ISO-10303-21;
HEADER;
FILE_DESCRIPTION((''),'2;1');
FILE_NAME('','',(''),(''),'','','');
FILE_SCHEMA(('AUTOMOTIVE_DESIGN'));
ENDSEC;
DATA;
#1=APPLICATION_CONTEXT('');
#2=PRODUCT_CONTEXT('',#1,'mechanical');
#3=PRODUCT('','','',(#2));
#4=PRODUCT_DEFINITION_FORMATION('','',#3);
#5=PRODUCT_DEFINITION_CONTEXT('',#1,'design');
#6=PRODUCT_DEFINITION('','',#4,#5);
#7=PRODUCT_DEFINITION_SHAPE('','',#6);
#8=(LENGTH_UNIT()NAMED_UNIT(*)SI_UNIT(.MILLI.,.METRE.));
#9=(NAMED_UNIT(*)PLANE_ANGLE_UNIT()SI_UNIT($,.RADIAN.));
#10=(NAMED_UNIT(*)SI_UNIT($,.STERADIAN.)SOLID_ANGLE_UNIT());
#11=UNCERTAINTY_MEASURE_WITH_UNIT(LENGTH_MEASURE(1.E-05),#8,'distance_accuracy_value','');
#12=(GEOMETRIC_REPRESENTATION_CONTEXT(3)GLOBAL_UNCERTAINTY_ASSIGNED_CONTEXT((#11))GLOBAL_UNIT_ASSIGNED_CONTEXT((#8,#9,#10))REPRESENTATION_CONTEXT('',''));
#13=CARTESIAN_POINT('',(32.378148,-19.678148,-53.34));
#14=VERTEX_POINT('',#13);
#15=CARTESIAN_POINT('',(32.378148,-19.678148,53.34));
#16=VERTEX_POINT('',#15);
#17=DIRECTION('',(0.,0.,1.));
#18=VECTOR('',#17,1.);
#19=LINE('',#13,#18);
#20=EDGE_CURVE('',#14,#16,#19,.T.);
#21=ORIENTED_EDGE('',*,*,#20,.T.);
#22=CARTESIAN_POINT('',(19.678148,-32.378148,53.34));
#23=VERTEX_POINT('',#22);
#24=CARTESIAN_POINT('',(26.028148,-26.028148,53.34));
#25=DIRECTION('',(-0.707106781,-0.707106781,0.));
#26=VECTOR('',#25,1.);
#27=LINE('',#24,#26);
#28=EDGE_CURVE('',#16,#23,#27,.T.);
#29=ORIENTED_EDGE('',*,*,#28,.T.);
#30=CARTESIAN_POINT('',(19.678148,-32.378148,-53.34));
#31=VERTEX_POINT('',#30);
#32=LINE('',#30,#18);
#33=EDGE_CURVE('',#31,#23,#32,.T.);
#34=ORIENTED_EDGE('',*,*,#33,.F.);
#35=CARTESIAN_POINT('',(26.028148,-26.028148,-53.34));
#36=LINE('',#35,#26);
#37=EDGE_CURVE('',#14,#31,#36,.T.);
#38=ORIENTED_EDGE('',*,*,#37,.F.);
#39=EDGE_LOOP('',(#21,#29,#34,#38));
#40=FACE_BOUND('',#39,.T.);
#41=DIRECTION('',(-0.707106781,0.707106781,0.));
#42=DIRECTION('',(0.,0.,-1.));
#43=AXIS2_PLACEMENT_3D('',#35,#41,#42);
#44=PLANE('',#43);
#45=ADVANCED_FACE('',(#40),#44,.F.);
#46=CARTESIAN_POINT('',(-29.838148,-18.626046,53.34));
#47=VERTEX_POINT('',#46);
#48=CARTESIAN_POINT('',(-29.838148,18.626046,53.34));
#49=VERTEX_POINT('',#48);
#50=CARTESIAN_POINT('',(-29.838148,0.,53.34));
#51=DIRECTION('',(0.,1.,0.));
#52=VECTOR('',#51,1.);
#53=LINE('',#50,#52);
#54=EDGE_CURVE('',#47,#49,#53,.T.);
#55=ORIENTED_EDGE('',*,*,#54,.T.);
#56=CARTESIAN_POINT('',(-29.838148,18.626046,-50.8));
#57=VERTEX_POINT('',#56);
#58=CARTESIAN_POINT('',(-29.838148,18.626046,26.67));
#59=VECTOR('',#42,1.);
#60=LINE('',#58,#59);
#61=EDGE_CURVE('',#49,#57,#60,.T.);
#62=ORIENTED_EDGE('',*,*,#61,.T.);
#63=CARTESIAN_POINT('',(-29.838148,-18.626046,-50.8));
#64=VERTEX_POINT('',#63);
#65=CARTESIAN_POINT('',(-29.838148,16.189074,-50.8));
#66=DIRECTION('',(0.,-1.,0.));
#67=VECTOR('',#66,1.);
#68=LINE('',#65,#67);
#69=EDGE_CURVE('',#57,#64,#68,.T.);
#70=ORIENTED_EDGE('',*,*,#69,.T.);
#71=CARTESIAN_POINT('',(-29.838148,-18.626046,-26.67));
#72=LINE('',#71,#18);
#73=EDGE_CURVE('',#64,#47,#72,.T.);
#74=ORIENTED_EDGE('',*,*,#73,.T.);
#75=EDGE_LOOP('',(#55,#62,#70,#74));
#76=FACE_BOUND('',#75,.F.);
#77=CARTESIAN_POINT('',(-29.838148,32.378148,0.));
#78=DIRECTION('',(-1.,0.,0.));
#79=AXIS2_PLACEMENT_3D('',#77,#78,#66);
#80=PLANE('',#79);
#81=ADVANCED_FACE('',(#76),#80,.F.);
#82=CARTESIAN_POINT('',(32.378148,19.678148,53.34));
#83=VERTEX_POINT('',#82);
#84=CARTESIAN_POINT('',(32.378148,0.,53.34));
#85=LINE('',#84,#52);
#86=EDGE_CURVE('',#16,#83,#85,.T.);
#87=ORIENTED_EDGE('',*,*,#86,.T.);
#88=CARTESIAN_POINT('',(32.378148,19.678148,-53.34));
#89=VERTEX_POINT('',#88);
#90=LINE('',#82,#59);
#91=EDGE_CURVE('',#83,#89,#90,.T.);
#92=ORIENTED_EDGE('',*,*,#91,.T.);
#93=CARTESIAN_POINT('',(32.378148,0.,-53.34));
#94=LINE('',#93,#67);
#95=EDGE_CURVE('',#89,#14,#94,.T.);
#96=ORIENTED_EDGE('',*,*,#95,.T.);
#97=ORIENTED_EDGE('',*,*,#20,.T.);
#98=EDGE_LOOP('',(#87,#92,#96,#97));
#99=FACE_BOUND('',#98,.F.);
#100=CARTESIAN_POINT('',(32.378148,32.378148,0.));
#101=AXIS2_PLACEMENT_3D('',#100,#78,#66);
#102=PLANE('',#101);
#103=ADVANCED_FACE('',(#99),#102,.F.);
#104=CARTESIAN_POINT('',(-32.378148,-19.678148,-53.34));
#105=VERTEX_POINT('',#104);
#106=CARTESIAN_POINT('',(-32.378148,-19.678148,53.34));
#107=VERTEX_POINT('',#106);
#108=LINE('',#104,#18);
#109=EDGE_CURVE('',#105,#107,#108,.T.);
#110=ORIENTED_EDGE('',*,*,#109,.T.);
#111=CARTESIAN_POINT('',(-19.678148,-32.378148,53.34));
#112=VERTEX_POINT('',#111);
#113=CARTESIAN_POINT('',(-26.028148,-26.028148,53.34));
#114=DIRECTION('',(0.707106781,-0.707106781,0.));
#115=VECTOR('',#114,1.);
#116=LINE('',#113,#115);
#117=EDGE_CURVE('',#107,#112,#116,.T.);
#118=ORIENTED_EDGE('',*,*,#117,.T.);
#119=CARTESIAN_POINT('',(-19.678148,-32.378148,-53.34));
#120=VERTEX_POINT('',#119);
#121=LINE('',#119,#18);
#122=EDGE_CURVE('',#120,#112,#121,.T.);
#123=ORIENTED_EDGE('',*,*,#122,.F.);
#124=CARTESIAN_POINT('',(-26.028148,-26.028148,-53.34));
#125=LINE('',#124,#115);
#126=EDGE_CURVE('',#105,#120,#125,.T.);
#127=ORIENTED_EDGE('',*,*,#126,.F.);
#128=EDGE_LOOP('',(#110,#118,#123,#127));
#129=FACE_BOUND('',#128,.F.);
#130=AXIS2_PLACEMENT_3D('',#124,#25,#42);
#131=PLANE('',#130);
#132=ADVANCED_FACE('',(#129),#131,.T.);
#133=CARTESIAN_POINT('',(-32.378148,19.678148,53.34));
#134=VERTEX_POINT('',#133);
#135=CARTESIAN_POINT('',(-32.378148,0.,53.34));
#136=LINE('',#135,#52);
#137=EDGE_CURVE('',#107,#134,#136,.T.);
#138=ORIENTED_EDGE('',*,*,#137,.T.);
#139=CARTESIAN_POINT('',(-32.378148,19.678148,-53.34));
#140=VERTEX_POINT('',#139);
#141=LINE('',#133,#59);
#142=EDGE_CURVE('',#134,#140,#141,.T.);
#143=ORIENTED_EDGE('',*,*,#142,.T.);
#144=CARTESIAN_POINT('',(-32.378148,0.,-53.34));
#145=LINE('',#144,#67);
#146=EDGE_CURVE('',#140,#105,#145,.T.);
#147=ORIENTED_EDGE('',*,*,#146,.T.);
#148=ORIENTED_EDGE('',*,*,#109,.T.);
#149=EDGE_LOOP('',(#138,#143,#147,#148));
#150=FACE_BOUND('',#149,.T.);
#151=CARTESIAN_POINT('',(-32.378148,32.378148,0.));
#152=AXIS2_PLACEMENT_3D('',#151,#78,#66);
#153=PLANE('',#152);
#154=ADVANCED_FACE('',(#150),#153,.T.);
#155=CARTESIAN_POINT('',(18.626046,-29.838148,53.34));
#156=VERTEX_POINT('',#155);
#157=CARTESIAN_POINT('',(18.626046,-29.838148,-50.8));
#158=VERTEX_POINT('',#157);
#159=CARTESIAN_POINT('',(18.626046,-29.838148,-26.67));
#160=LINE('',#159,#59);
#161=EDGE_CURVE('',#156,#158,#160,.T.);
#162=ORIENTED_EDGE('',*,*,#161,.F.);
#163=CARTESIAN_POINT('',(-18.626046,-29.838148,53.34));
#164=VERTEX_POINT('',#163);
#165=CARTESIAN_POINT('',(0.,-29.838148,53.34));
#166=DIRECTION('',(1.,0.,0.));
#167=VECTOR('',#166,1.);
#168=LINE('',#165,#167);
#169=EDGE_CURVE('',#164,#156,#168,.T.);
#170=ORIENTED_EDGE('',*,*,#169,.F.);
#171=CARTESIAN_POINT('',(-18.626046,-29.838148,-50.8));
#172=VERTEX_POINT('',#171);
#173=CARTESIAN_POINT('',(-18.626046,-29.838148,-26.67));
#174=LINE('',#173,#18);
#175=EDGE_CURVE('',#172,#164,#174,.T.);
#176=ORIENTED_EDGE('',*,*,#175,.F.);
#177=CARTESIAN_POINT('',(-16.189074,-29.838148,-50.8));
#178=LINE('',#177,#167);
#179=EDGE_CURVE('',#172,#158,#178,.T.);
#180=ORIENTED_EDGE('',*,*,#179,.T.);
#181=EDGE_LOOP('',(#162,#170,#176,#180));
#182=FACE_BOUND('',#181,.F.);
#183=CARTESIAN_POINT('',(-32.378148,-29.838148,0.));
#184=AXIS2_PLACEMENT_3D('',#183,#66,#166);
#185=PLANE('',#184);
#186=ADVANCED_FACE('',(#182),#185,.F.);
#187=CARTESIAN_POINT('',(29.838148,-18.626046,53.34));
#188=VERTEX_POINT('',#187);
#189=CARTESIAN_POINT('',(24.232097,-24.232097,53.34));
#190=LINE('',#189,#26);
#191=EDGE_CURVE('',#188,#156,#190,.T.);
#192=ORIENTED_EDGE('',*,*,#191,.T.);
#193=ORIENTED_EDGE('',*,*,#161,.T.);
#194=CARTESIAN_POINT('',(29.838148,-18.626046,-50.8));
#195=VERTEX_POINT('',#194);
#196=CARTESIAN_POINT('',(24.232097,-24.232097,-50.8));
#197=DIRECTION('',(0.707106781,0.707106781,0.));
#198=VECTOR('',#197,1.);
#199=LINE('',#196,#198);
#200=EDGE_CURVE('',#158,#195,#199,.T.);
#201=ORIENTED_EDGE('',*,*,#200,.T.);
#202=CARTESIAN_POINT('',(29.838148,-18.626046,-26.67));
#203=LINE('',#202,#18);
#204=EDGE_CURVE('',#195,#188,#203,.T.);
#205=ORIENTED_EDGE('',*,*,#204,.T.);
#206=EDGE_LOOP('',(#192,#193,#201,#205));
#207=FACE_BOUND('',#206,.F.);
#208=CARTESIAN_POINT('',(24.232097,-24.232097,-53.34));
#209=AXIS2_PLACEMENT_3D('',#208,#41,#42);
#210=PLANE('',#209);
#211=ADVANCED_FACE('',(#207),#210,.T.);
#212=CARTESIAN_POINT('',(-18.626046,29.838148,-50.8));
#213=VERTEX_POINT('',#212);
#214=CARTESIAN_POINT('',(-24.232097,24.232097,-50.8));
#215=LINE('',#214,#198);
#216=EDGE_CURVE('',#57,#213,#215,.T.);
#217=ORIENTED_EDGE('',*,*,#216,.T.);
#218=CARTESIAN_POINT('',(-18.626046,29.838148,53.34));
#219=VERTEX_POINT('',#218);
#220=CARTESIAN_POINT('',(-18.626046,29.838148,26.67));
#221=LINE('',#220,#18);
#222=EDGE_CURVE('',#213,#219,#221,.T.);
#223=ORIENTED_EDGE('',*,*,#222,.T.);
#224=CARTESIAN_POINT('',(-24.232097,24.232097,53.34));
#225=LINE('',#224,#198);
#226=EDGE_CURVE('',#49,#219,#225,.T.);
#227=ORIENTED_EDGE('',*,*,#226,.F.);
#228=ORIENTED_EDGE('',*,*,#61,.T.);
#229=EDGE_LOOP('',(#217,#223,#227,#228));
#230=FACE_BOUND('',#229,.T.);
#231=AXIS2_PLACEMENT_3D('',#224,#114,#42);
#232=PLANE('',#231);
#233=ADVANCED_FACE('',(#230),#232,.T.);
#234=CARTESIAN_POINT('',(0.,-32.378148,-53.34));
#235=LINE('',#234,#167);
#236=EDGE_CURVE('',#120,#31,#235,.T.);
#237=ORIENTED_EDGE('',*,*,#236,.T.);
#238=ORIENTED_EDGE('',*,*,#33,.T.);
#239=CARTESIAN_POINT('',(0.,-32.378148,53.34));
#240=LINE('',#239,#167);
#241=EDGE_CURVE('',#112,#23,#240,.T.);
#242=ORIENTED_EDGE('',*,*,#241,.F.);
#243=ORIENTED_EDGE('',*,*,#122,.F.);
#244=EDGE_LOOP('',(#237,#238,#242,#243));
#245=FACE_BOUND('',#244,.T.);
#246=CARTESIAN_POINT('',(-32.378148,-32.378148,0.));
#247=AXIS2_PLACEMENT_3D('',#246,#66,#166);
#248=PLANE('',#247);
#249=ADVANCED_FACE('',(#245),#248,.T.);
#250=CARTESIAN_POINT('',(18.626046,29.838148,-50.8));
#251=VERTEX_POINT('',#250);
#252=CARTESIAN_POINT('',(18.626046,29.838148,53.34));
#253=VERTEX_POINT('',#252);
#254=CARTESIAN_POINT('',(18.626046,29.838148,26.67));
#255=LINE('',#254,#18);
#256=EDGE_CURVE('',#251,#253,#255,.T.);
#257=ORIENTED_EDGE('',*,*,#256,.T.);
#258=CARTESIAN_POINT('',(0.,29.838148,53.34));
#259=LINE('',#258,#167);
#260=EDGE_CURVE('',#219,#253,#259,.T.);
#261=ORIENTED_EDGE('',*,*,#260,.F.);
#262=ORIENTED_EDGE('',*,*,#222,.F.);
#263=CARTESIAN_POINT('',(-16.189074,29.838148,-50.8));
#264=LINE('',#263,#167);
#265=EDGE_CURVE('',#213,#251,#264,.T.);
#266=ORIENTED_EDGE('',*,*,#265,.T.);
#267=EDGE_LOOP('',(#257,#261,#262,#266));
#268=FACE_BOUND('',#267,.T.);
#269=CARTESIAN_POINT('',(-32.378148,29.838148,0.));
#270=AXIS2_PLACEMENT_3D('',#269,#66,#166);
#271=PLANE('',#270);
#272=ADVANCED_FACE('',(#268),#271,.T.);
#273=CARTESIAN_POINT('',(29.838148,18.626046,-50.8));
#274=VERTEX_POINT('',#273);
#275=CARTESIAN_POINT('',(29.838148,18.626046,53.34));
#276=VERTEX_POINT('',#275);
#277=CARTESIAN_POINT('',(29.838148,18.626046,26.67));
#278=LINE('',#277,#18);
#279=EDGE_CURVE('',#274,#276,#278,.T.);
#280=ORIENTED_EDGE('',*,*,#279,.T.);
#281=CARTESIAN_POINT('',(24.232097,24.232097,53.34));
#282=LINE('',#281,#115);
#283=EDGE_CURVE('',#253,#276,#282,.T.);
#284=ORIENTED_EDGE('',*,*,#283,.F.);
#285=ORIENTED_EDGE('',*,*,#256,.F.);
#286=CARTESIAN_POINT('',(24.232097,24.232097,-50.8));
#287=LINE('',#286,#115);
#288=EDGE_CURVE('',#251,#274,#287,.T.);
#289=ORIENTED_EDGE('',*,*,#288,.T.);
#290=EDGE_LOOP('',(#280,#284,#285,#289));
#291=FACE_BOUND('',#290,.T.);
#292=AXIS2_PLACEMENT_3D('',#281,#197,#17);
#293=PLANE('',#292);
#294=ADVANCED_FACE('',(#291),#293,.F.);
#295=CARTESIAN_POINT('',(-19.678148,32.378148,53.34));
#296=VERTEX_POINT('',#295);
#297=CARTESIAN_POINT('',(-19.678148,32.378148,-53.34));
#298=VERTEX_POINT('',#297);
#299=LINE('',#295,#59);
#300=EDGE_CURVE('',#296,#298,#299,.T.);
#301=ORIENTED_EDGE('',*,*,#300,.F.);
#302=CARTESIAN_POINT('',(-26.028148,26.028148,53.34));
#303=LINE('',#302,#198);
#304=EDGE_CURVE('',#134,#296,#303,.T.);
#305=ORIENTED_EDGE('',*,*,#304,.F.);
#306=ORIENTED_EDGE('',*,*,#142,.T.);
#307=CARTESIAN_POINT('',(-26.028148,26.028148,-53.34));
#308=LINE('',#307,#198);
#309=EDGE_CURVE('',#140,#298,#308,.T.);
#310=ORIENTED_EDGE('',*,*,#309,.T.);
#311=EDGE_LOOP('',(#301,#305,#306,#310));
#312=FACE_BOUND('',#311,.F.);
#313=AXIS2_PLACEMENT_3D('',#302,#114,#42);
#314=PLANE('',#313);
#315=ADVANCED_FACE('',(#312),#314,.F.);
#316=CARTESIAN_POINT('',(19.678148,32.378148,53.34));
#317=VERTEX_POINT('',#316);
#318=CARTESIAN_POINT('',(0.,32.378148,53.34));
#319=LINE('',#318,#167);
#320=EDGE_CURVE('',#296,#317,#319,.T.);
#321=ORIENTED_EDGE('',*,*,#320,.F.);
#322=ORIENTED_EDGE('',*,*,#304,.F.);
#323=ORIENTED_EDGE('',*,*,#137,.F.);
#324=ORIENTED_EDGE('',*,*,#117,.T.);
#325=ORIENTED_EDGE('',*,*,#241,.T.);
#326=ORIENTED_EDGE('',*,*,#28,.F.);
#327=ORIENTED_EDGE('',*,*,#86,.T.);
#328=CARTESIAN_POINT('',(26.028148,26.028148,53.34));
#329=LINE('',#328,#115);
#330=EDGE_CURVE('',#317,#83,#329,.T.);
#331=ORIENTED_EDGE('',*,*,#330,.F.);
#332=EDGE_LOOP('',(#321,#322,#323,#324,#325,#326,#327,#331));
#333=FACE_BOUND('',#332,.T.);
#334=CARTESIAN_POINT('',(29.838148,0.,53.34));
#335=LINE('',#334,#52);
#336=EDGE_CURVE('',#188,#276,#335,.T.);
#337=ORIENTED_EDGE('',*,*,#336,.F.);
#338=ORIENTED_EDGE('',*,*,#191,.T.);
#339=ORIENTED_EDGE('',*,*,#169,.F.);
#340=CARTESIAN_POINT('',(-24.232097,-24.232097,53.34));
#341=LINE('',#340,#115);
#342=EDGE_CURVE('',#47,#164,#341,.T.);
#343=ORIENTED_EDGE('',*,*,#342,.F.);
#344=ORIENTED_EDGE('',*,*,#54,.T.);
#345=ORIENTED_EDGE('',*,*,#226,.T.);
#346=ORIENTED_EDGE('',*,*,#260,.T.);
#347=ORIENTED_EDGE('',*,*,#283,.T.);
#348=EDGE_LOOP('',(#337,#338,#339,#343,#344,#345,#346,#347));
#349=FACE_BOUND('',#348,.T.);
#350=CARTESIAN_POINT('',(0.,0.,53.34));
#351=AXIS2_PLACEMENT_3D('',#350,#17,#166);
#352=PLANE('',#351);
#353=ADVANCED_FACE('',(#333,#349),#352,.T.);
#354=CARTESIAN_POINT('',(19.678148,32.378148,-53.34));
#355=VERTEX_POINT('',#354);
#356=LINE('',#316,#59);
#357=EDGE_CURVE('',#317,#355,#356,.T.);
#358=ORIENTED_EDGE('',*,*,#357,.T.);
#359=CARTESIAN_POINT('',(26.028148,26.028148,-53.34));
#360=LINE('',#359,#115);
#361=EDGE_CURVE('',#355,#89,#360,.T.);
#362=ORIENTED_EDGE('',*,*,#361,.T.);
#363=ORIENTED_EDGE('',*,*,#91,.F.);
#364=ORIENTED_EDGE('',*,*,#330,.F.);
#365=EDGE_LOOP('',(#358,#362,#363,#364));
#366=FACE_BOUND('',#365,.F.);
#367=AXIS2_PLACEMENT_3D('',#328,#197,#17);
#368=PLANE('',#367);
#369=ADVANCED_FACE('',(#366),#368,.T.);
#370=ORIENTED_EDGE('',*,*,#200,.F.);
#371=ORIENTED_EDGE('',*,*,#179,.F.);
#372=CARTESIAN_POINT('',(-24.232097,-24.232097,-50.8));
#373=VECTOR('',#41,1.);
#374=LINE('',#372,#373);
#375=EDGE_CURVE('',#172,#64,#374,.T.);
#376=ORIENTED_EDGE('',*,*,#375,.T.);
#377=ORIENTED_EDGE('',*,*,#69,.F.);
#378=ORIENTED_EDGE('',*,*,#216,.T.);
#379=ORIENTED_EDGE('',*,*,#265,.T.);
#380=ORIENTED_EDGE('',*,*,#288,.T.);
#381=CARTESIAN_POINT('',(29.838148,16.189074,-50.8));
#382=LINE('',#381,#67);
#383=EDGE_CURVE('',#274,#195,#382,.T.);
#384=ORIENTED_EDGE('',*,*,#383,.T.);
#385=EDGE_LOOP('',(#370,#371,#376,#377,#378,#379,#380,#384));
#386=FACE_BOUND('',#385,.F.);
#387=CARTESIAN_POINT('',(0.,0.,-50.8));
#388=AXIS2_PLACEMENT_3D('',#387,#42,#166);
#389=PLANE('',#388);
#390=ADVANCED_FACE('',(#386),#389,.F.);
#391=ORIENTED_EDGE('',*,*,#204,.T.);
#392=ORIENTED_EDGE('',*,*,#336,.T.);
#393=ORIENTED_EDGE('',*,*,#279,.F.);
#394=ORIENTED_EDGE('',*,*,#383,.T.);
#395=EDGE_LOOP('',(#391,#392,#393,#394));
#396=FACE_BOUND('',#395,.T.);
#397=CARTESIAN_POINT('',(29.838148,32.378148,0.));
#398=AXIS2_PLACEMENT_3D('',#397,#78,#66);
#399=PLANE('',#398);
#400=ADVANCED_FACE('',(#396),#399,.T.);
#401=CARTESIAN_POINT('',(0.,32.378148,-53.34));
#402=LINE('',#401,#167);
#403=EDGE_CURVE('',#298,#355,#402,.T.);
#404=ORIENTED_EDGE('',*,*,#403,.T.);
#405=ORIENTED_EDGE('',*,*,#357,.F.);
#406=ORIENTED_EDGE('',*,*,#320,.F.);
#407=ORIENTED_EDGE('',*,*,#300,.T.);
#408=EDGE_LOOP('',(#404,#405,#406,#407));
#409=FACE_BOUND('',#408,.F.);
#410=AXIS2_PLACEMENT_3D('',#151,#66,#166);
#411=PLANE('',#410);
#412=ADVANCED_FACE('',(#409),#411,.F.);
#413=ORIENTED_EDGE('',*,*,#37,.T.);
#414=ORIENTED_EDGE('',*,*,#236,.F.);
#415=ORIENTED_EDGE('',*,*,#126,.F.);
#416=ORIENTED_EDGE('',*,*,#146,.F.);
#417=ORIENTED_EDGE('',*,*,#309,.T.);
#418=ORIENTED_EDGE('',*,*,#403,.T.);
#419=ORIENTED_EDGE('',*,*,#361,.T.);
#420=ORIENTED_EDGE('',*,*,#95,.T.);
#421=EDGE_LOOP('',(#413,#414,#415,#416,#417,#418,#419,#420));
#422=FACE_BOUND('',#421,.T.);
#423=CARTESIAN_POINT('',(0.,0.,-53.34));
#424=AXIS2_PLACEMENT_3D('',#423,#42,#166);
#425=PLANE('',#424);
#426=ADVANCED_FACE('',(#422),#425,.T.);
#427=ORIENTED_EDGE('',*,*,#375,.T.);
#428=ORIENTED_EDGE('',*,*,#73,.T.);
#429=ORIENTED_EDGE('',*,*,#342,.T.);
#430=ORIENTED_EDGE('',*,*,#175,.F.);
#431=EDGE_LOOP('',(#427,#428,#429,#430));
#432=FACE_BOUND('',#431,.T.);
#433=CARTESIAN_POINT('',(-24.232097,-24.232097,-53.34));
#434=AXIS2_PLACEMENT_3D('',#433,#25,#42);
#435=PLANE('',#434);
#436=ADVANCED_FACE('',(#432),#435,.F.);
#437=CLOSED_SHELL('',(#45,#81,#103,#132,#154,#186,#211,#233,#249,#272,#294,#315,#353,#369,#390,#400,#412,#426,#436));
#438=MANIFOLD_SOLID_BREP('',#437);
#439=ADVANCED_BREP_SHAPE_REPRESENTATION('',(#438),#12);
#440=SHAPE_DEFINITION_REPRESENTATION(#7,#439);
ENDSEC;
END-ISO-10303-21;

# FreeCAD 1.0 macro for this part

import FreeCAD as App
import Part
import Sketcher
from FreeCAD import Vector
Q = App.Units.Quantity


def edges_at(feature, points):
    """Names of the edges that pass closest to the given points."""
    edges = feature.Shape.Edges
    near = lambda p: min(range(len(edges)), key=lambda i: edges[i].distToShape(Part.Vertex(*p))[0])
    return sorted({f"Edge{near(p) + 1}" for p in points})


def faces_at(feature, points):
    """Names of the faces that lie closest to the given points."""
    faces = feature.Shape.Faces
    near = lambda p: min(range(len(faces)), key=lambda i: faces[i].distToShape(Part.Vertex(*p))[0])
    return sorted({f"Face{near(p) + 1}" for p in points})


def add_polygon(sketch, points):
    """Adds a closed chain of lines whose ends are joined by coincident constraints."""
    first, n = sketch.GeometryCount, len(points)
    for a, b in zip(points, points[1:] + points[:1]):
        sketch.addGeometry(Part.LineSegment(App.Vector(*a, 0), App.Vector(*b, 0)), False)
    for i in range(n):
        sketch.addConstraint(Sketcher.Constraint("Coincident", first + i, 2, first + (i + 1) % n, 1))

doc = App.newDocument("Part")
body = doc.addObject("PartDesign::Body", "Body")

# Sketch on XY plane
sketch1 = body.newObject("Sketcher::SketchObject", "Sketch")
sketch1.AttachmentSupport = (doc.getObject("XY_Plane"), [""])
sketch1.MapMode = "FlatFace"
add_polygon(sketch1, [(-32, 32), (-32, -32), (32, -32), (32, 32)])  # lines 0-3
sketch1.addConstraint([
    Sketcher.Constraint("Vertical", 0),
    Sketcher.Constraint("Horizontal", 1),
    Sketcher.Constraint("Vertical", 2),
    Sketcher.Constraint("Horizontal", 3),
    Sketcher.Constraint("Symmetric", 0, 2, 2, 2, -1, 1),
    Sketcher.Constraint("Equal", 3, 0),
    Sketcher.Constraint("DistanceX", 1, 1, 1, 2, Q("64.756296 mm")),
])
pad1 = body.newObject("PartDesign::Pad", "Pad")
pad1.Profile = sketch1
pad1.Length = Q("2.1 in")

# Sketch on XY plane
sketch2 = body.newObject("Sketcher::SketchObject", "Sketch001")
sketch2.AttachmentSupport = (doc.getObject("XY_Plane"), [""])
sketch2.MapMode = "FlatFace"
add_polygon(sketch2, [(-32, -32), (-32, 32), (32, 32), (32, -32)])  # lines 0-3
sketch2.addConstraint([
    Sketcher.Constraint("Vertical", 0),
    Sketcher.Constraint("Horizontal", 1),
    Sketcher.Constraint("Vertical", 2),
    Sketcher.Constraint("Horizontal", 3),
    Sketcher.Constraint("Symmetric", 0, 2, 2, 2, -1, 1),
    Sketcher.Constraint("Equal", 3, 0),
    Sketcher.Constraint("DistanceX", 1, 1, 1, 2, Q("64.756296 mm")),
])
pad2 = body.newObject("PartDesign::Pad", "Pad001")
pad2.Profile = sketch2
pad2.Length = Q("2.1 in")
pad2.Reversed = True
doc.recompute()

chamfer = body.newObject("PartDesign::Chamfer", "Chamfer")
chamfer.Base = (pad2, edges_at(pad2, [(-32.378, -32.378, 0)]))
chamfer.Size = Q("0.5 in")
doc.recompute()

chamfer2 = body.newObject("PartDesign::Chamfer", "Chamfer001")
chamfer2.Base = (chamfer, edges_at(chamfer, [(-32.378, 32.378, 0)]))
chamfer2.Size = Q("0.5 in")
doc.recompute()

chamfer3 = body.newObject("PartDesign::Chamfer", "Chamfer002")
chamfer3.Base = (chamfer2, edges_at(chamfer2, [(32.378, 32.378, 0)]))
chamfer3.Size = Q("0.5 in")
doc.recompute()

chamfer4 = body.newObject("PartDesign::Chamfer", "Chamfer003")
chamfer4.Base = (chamfer3, edges_at(chamfer3, [(32.378, -32.378, 0)]))
chamfer4.Size = Q("0.5 in")
doc.recompute()

thickness = body.newObject("PartDesign::Thickness", "Thickness")
thickness.Base = (chamfer4, faces_at(chamfer4, [(0, 0, 53.34)]))
thickness.Value = Q("0.1 in")
thickness.Reversed = True
thickness.Join = "Arc"

doc.recompute()
